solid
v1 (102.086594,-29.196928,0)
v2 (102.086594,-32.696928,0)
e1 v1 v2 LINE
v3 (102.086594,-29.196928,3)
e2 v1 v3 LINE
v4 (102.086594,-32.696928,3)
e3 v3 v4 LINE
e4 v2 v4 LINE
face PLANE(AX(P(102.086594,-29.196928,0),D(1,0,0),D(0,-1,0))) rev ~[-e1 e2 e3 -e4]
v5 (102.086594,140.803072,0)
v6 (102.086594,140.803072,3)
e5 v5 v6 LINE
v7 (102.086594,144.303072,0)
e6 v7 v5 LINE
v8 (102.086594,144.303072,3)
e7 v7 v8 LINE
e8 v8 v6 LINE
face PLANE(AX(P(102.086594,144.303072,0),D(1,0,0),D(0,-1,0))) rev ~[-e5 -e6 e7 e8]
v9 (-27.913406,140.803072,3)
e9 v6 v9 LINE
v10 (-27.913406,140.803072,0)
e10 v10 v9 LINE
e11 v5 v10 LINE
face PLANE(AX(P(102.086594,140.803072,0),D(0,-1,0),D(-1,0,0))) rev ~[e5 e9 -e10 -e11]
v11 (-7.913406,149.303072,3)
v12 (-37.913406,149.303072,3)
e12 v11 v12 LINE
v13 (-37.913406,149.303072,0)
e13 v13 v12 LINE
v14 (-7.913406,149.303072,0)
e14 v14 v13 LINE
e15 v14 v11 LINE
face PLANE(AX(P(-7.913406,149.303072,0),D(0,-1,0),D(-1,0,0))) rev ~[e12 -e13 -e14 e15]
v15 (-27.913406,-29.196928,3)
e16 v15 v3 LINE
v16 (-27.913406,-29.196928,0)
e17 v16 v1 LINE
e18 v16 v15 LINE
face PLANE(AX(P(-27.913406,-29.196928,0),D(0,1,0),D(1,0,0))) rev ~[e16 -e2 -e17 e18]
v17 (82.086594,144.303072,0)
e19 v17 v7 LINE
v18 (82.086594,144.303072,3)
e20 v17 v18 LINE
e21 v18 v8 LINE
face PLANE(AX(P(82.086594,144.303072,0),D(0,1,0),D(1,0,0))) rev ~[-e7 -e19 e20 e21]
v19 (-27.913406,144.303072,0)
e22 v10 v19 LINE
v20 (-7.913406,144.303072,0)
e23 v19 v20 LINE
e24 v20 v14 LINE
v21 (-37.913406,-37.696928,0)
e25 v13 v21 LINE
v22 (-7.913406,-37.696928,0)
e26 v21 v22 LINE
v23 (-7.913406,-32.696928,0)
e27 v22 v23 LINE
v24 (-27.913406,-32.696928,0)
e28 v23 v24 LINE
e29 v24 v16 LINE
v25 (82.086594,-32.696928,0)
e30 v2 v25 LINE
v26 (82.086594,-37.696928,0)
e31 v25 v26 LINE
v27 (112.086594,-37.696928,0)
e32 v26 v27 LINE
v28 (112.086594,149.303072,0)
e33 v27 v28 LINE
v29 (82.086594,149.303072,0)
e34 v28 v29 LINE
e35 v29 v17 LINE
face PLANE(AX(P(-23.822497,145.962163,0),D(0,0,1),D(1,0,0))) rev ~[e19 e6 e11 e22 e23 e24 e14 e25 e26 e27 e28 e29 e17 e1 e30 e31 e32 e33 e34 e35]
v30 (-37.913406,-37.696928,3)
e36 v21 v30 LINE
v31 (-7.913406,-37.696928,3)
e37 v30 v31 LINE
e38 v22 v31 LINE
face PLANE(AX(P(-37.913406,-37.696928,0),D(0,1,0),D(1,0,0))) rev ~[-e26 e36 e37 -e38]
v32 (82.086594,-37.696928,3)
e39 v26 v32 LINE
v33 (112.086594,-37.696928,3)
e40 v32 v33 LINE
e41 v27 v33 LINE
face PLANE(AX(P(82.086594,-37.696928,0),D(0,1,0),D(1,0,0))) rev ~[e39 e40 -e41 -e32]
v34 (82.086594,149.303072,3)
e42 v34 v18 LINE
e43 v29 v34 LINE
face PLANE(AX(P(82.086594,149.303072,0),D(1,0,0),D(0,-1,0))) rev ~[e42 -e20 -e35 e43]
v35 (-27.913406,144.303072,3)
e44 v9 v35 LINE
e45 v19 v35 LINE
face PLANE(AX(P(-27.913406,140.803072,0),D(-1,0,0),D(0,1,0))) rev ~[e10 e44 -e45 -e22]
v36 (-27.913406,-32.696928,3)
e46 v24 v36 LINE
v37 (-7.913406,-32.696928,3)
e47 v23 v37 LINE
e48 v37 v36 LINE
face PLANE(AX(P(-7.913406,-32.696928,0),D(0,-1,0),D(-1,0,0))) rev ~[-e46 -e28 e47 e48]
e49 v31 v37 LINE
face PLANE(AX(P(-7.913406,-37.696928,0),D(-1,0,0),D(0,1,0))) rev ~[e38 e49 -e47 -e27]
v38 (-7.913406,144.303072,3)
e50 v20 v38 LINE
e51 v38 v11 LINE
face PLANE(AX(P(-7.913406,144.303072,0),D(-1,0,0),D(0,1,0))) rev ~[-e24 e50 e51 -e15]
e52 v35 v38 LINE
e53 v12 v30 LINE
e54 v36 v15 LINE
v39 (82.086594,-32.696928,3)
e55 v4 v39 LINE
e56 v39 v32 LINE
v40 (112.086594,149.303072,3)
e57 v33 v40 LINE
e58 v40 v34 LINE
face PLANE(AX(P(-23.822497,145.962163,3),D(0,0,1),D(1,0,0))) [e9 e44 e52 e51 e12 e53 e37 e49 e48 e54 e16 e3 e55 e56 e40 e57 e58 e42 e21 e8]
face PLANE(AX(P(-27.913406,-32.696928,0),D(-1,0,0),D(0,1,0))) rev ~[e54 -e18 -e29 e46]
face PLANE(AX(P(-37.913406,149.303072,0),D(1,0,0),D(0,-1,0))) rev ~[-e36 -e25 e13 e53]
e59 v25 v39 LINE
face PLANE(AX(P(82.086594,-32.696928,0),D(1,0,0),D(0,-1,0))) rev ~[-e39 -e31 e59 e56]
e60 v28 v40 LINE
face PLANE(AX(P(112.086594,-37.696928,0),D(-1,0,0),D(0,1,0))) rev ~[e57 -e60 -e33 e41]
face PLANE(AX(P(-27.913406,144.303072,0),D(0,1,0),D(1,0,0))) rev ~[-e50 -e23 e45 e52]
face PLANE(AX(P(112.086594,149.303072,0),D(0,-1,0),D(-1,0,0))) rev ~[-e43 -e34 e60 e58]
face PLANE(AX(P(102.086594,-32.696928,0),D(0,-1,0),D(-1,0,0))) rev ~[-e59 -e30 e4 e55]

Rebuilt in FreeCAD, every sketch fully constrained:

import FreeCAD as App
import Part
import Sketcher

V = App.Vector

doc = App.newDocument("Part")
body = doc.addObject("PartDesign::Body", "Body")

sketch1 = body.newObject("Sketcher::SketchObject", "Sketch")
sketch1.AttachmentSupport = (doc.getObject("XY_Plane"), [""])
sketch1.MapMode = "FlatFace"
sketch1.addGeometry([
    Part.LineSegment(V(-37.9, 149.3, 0), V(-37.9, -37.7, 0)),
    Part.LineSegment(V(-37.9, -37.7, 0), V(-7.9, -37.7, 0)),
    Part.LineSegment(V(-7.9, -37.7, 0), V(-7.9, -32.7, 0)),
    Part.LineSegment(V(-7.9, -32.7, 0), V(-27.9, -32.7, 0)),
    Part.LineSegment(V(-27.9, -32.7, 0), V(-27.9, -29.2, 0)),
    Part.LineSegment(V(-27.9, -29.2, 0), V(102.1, -29.2, 0)),
    Part.LineSegment(V(102.1, -29.2, 0), V(102.1, -32.7, 0)),
    Part.LineSegment(V(102.1, -32.7, 0), V(82.1, -32.7, 0)),
    Part.LineSegment(V(82.1, -32.7, 0), V(82.1, -37.7, 0)),
    Part.LineSegment(V(82.1, -37.7, 0), V(112.1, -37.7, 0)),
    Part.LineSegment(V(112.1, -37.7, 0), V(112.1, 149.3, 0)),
    Part.LineSegment(V(112.1, 149.3, 0), V(82.1, 149.3, 0)),
    Part.LineSegment(V(82.1, 149.3, 0), V(82.1, 144.3, 0)),
    Part.LineSegment(V(82.1, 144.3, 0), V(102.1, 144.3, 0)),
    Part.LineSegment(V(102.1, 144.3, 0), V(102.1, 140.8, 0)),
    Part.LineSegment(V(102.1, 140.8, 0), V(-27.9, 140.8, 0)),
    Part.LineSegment(V(-27.9, 140.8, 0), V(-27.9, 144.3, 0)),
    Part.LineSegment(V(-27.9, 144.3, 0), V(-7.9, 144.3, 0)),
    Part.LineSegment(V(-7.9, 144.3, 0), V(-7.9, 149.3, 0)),
    Part.LineSegment(V(-7.9, 149.3, 0), V(-37.9, 149.3, 0)),
], False)
sketch1.addConstraint([
    Sketcher.Constraint("Coincident", 0, 2, 1, 1),
    Sketcher.Constraint("Coincident", 1, 2, 2, 1),
    Sketcher.Constraint("Coincident", 2, 2, 3, 1),
    Sketcher.Constraint("Coincident", 3, 2, 4, 1),
    Sketcher.Constraint("Coincident", 4, 2, 5, 1),
    Sketcher.Constraint("Coincident", 5, 2, 6, 1),
    Sketcher.Constraint("Coincident", 6, 2, 7, 1),
    Sketcher.Constraint("Coincident", 7, 2, 8, 1),
    Sketcher.Constraint("Coincident", 8, 2, 9, 1),
    Sketcher.Constraint("Coincident", 9, 2, 10, 1),
    Sketcher.Constraint("Coincident", 10, 2, 11, 1),
    Sketcher.Constraint("Coincident", 11, 2, 12, 1),
    Sketcher.Constraint("Coincident", 12, 2, 13, 1),
    Sketcher.Constraint("Coincident", 13, 2, 14, 1),
    Sketcher.Constraint("Coincident", 14, 2, 15, 1),
    Sketcher.Constraint("Coincident", 15, 2, 16, 1),
    Sketcher.Constraint("Coincident", 16, 2, 17, 1),
    Sketcher.Constraint("Coincident", 17, 2, 18, 1),
    Sketcher.Constraint("Coincident", 18, 2, 19, 1),
    Sketcher.Constraint("Coincident", 19, 2, 0, 1),
    Sketcher.Constraint("Vertical", 0),
    Sketcher.Constraint("Horizontal", 1),
    Sketcher.Constraint("Vertical", 2),
    Sketcher.Constraint("Horizontal", 3),
    Sketcher.Constraint("Vertical", 4),
    Sketcher.Constraint("Horizontal", 5),
    Sketcher.Constraint("Vertical", 6),
    Sketcher.Constraint("Horizontal", 7),
    Sketcher.Constraint("Vertical", 8),
    Sketcher.Constraint("Horizontal", 9),
    Sketcher.Constraint("Vertical", 10),
    Sketcher.Constraint("Horizontal", 11),
    Sketcher.Constraint("Vertical", 12),
    Sketcher.Constraint("Horizontal", 13),
    Sketcher.Constraint("Vertical", 14),
    Sketcher.Constraint("Horizontal", 15),
    Sketcher.Constraint("Vertical", 16),
    Sketcher.Constraint("Horizontal", 17),
    Sketcher.Constraint("Vertical", 18),
    Sketcher.Constraint("Horizontal", 19),
    Sketcher.Constraint("Horizontal", 3, 2, 6, 2),
    Sketcher.Constraint("Horizontal", 1, 2, 8, 2),
    Sketcher.Constraint("Horizontal", 13, 2, 16, 2),
    Sketcher.Constraint("Horizontal", 11, 2, 18, 2),
    Sketcher.Constraint("Vertical", 8, 2, 11, 2),
    Sketcher.Constraint("Vertical", 6, 2, 13, 2),
    Sketcher.Constraint("Vertical", 4, 2, 15, 2),
    Sketcher.Constraint("Vertical", 2, 2, 17, 2),
    Sketcher.Constraint("Equal", 3, 7),
    Sketcher.Constraint("Equal", 1, 9),
    Sketcher.Constraint("Equal", 8, 12),
    Sketcher.Constraint("Equal", 6, 14),
    Sketcher.Constraint("DistanceX", 1, 1, 1, 2, 30.0),
    Sketcher.Constraint("DistanceX", 3, 2, 3, 1, 20.0),
    Sketcher.Constraint("DistanceX", 5, 1, 5, 2, 130.0),
    Sketcher.Constraint("DistanceY", 0, 2, 0, 1, 187.0),
    Sketcher.Constraint("DistanceY", 2, 1, 2, 2, 5.0),
    Sketcher.Constraint("DistanceY", 4, 1, 4, 2, 3.5),
    Sketcher.Constraint("DistanceY", 4, 2, -1, 1, 29.196928),
    Sketcher.Constraint("DistanceX", 0, 2, -1, 1, 37.913406),
])
pad1 = body.newObject("PartDesign::Pad", "Pad")
pad1.Profile = sketch1
pad1.Length = 3

doc.recompute()
